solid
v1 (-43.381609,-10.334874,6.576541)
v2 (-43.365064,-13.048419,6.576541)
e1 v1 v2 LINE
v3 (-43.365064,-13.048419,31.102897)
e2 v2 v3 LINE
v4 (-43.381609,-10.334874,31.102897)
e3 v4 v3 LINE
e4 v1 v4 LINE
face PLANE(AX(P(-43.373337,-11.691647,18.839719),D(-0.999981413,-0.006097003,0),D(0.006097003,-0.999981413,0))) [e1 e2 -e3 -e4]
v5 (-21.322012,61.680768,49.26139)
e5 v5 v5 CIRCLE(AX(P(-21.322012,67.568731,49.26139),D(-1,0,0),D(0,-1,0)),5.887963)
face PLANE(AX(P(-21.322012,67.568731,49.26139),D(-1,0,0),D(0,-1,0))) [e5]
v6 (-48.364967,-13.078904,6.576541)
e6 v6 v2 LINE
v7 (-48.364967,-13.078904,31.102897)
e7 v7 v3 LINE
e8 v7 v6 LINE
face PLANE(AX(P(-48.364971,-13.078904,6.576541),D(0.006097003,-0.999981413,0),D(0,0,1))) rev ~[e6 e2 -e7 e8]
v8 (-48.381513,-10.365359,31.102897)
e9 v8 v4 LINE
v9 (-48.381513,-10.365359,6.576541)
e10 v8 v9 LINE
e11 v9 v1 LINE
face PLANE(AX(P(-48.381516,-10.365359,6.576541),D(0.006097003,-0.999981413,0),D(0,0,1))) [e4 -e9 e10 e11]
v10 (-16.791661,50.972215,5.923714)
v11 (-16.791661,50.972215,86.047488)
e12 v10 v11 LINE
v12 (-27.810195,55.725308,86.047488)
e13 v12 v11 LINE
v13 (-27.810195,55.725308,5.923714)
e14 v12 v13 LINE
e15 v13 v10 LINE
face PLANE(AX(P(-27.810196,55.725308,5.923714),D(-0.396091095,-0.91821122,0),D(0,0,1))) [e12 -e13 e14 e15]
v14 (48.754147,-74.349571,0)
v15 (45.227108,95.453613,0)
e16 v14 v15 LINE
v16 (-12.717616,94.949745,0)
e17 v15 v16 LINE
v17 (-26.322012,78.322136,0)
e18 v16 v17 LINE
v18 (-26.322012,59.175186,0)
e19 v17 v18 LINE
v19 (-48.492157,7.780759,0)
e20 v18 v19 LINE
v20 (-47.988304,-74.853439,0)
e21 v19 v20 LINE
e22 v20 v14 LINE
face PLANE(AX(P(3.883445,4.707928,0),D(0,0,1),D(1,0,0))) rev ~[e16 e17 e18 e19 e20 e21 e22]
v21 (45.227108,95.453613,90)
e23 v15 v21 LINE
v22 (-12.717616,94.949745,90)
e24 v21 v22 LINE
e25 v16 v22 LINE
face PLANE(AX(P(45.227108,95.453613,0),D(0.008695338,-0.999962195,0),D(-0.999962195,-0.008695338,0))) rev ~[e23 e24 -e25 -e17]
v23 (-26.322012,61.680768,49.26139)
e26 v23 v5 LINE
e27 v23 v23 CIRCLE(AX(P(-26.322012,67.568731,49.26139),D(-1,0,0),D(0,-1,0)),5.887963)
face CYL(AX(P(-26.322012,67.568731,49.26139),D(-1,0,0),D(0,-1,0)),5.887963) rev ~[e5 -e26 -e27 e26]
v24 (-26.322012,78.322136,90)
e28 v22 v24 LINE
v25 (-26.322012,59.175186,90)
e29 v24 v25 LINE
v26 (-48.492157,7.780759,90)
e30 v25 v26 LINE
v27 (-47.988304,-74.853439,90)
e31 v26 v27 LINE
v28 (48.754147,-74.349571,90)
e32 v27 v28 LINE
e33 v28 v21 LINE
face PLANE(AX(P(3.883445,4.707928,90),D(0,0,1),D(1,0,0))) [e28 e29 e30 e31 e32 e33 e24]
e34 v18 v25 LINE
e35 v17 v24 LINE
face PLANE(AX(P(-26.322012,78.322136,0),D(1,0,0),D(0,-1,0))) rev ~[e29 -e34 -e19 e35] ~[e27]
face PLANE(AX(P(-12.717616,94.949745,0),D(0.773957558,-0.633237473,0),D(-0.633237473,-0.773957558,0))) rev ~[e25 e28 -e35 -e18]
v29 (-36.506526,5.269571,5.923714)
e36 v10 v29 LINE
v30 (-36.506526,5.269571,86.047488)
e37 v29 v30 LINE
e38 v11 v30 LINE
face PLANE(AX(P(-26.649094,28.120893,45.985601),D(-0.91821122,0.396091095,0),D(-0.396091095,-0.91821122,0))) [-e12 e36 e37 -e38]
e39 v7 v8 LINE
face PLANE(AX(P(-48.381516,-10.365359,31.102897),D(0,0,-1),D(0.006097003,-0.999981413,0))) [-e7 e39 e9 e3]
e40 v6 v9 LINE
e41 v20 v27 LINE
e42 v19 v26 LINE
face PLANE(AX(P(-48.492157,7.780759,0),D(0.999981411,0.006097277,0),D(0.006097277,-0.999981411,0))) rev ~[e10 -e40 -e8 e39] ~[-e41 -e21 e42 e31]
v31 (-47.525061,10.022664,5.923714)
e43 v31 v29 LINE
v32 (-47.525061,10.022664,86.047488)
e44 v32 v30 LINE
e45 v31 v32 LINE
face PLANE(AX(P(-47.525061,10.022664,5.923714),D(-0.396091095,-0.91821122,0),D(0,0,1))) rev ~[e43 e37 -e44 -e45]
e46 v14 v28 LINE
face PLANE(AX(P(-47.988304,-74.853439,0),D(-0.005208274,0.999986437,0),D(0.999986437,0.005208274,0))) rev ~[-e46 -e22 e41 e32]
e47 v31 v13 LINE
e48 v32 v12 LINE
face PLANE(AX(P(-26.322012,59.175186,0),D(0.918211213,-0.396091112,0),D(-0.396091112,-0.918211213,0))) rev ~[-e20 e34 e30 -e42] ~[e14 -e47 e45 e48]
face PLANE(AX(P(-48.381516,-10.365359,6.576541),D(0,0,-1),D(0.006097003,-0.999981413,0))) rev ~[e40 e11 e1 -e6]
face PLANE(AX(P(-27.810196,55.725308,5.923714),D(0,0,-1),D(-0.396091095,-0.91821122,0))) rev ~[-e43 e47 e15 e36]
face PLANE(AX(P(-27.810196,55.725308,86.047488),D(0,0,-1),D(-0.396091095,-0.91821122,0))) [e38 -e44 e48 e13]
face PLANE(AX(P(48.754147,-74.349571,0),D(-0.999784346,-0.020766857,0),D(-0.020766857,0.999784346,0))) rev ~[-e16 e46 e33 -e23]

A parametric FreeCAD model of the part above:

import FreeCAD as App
import Part
import Sketcher
from FreeCAD import Vector
Q = App.Units.Quantity

doc = App.newDocument("Part")
body = doc.addObject("PartDesign::Body", "Body")

# Sketch on XY plane
sketch1 = doc.addObject("Sketcher::SketchObject", "Sketch")
body.addObject(sketch1)
sketch1.AttachmentSupport = (doc.XY_Plane, [""])
sketch1.MapMode = "FlatFace"
sketch1.addGeometry(Part.LineSegment(Vector(-48, 8, 0), Vector(-48, -75, 0)), False)
sketch1.addGeometry(Part.LineSegment(Vector(-48, -75, 0), Vector(49, -74, 0)), False)
sketch1.addGeometry(Part.LineSegment(Vector(49, -74, 0), Vector(45, 95, 0)), False)
sketch1.addGeometry(Part.LineSegment(Vector(45, 95, 0), Vector(-13, 95, 0)), False)
sketch1.addGeometry(Part.LineSegment(Vector(-13, 95, 0), Vector(-26, 78, 0)), False)
sketch1.addGeometry(Part.LineSegment(Vector(-26, 78, 0), Vector(-26, 59, 0)), False)
sketch1.addGeometry(Part.LineSegment(Vector(-26, 59, 0), Vector(-48, 8, 0)), False)
sketch1.addConstraint(Sketcher.Constraint("Coincident", 0, 2, 1, 1))
sketch1.addConstraint(Sketcher.Constraint("Coincident", 1, 2, 2, 1))
sketch1.addConstraint(Sketcher.Constraint("Coincident", 2, 2, 3, 1))
sketch1.addConstraint(Sketcher.Constraint("Coincident", 3, 2, 4, 1))
sketch1.addConstraint(Sketcher.Constraint("Coincident", 4, 2, 5, 1))
sketch1.addConstraint(Sketcher.Constraint("Coincident", 5, 2, 6, 1))
sketch1.addConstraint(Sketcher.Constraint("Coincident", 6, 2, 0, 1))
sketch1.addConstraint(Sketcher.Constraint("Vertical", 5))
sketch1.addConstraint(Sketcher.Constraint("DistanceY", 5, 2, 5, 1, Q("19.14695 mm")))
sketch1.addConstraint(Sketcher.Constraint("Distance", 2, Q("169.839811 mm")))
sketch1.addConstraint(Sketcher.Constraint("DistanceY", 0, 2, -1, 1, Q("74.853439 mm")))
sketch1.addConstraint(Sketcher.Constraint("DistanceY", 1, 2, -1, 1, Q("74.349571 mm")))
sketch1.addConstraint(Sketcher.Constraint("DistanceY", -1, 1, 6, 2, Q("7.780759 mm")))
sketch1.addConstraint(Sketcher.Constraint("DistanceX", 0, 2, 1, 2, Q("96.742451 mm")))
sketch1.addConstraint(Sketcher.Constraint("DistanceX", 2, 2, 1, 2, Q("3.527039 mm")))
sketch1.addConstraint(Sketcher.Constraint("DistanceY", 3, 2, 2, 2, Q("0.503868 mm")))
sketch1.addConstraint(Sketcher.Constraint("DistanceY", 4, 2, 3, 2, Q("16.627609 mm")))
sketch1.addConstraint(Sketcher.Constraint("DistanceX", 4, 2, 2, 2, Q("71.54912 mm")))
sketch1.addConstraint(Sketcher.Constraint("DistanceX", 6, 2, 3, 2, Q("35.774541 mm")))
sketch1.addConstraint(Sketcher.Constraint("Distance", 0, Q("82.635734 mm")))
sketch1.addConstraint(Sketcher.Constraint("DistanceX", 0, 2, -1, 1, Q("47.988304 mm")))
pad1 = doc.addObject("PartDesign::Pad", "Pad")
body.addObject(pad1)
pad1.Profile = sketch1
pad1.Length = 90

# Sketch on an angled plane
sketch2 = doc.addObject("Sketcher::SketchObject", "Sketch001")
body.addObject(sketch2)
sketch2.Placement = App.Placement(Vector(-43.714137, 18.857079, 0), App.Rotation(Vector(-0.396091095, -0.91821122, 0), Vector(0, 0, 1), Vector(-0.91821122, 0.396091095, 0), "ZXY"))
sketch2.addGeometry(Part.LineSegment(Vector(-40, 86, 0), Vector(-40, 6, 0)), False)
sketch2.addGeometry(Part.LineSegment(Vector(-40, 6, 0), Vector(10, 6, 0)), False)
sketch2.addGeometry(Part.LineSegment(Vector(10, 6, 0), Vector(10, 86, 0)), False)
sketch2.addGeometry(Part.LineSegment(Vector(10, 86, 0), Vector(-40, 86, 0)), False)
sketch2.addConstraint(Sketcher.Constraint("Coincident", 0, 2, 1, 1))
sketch2.addConstraint(Sketcher.Constraint("Coincident", 1, 2, 2, 1))
sketch2.addConstraint(Sketcher.Constraint("Coincident", 2, 2, 3, 1))
sketch2.addConstraint(Sketcher.Constraint("Coincident", 3, 2, 0, 1))
sketch2.addConstraint(Sketcher.Constraint("Vertical", 0))
sketch2.addConstraint(Sketcher.Constraint("Horizontal", 1))
sketch2.addConstraint(Sketcher.Constraint("Vertical", 2))
sketch2.addConstraint(Sketcher.Constraint("Horizontal", 3))
sketch2.addConstraint(Sketcher.Constraint("DistanceX", 1, 1, 1, 2, Q("49.773563 mm")))
sketch2.addConstraint(Sketcher.Constraint("DistanceY", 0, 2, 0, 1, Q("80.123774 mm")))
sketch2.addConstraint(Sketcher.Constraint("DistanceX", 0, 2, -1, 1, Q("40.152232 mm")))
sketch2.addConstraint(Sketcher.Constraint("DistanceY", -1, 1, 2, 2, Q("86.047488 mm")))
pocket1 = doc.addObject("PartDesign::Pocket", "Pocket")
body.addObject(pocket1)
pocket1.Profile = sketch2
pocket1.Length = 12

# Sketch on YZ plane
sketch3 = doc.addObject("Sketcher::SketchObject", "Sketch002")
body.addObject(sketch3)
sketch3.AttachmentSupport = (doc.YZ_Plane, [""])
sketch3.MapMode = "FlatFace"
sketch3.AttachmentOffset = App.Placement(Vector(0, 0, -26.322012), App.Rotation())
sketch3.addGeometry(Part.Circle(Vector(68, 49, 0), Vector(0, 0, 1), 6), False)
sketch3.addConstraint(Sketcher.Constraint("Diameter", 0, Q("11.775926 mm")))
sketch3.addConstraint(Sketcher.Constraint("DistanceX", -1, 1, 0, 3, Q("67.568731 mm")))
sketch3.addConstraint(Sketcher.Constraint("DistanceY", -1, 1, 0, 3, Q("49.26139 mm")))
pocket2 = doc.addObject("PartDesign::Pocket", "Pocket001")
body.addObject(pocket2)
pocket2.Profile = sketch3
pocket2.Length = 5
pocket2.Reversed = True

# Sketch on an angled plane
sketch4 = doc.addObject("Sketcher::SketchObject", "Sketch003")
body.addObject(sketch4)
sketch4.Placement = App.Placement(Vector(-48.442914, -0.295375, 0), App.Rotation(Vector(0.006097003, -0.999981413, 0), Vector(0, 0, 1), Vector(-0.999981413, -0.006097003, 0), "ZXY"))
sketch4.addGeometry(Part.LineSegment(Vector(10.1, 31.1, 0), Vector(10.1, 6.6, 0)), False)
sketch4.addGeometry(Part.LineSegment(Vector(10.1, 6.6, 0), Vector(12.8, 6.6, 0)), False)
sketch4.addGeometry(Part.LineSegment(Vector(12.8, 6.6, 0), Vector(12.8, 31.1, 0)), False)
sketch4.addGeometry(Part.LineSegment(Vector(12.8, 31.1, 0), Vector(10.1, 31.1, 0)), False)
sketch4.addConstraint(Sketcher.Constraint("Coincident", 0, 2, 1, 1))
sketch4.addConstraint(Sketcher.Constraint("Coincident", 1, 2, 2, 1))
sketch4.addConstraint(Sketcher.Constraint("Coincident", 2, 2, 3, 1))
sketch4.addConstraint(Sketcher.Constraint("Coincident", 3, 2, 0, 1))
sketch4.addConstraint(Sketcher.Constraint("Vertical", 0))
sketch4.addConstraint(Sketcher.Constraint("Horizontal", 1))
sketch4.addConstraint(Sketcher.Constraint("Vertical", 2))
sketch4.addConstraint(Sketcher.Constraint("Horizontal", 3))
sketch4.addConstraint(Sketcher.Constraint("DistanceX", 1, 1, 1, 2, Q("2.713595 mm")))
sketch4.addConstraint(Sketcher.Constraint("DistanceY", 0, 2, 0, 1, Q("24.526356 mm")))
sketch4.addConstraint(Sketcher.Constraint("DistanceX", -1, 1, 0, 2, Q("10.070171 mm")))
sketch4.addConstraint(Sketcher.Constraint("DistanceY", -1, 1, 0, 2, Q("6.576541 mm")))
pocket3 = doc.addObject("PartDesign::Pocket", "Pocket002")
body.addObject(pocket3)
pocket3.Profile = sketch4
pocket3.Length = 5

doc.recompute()
